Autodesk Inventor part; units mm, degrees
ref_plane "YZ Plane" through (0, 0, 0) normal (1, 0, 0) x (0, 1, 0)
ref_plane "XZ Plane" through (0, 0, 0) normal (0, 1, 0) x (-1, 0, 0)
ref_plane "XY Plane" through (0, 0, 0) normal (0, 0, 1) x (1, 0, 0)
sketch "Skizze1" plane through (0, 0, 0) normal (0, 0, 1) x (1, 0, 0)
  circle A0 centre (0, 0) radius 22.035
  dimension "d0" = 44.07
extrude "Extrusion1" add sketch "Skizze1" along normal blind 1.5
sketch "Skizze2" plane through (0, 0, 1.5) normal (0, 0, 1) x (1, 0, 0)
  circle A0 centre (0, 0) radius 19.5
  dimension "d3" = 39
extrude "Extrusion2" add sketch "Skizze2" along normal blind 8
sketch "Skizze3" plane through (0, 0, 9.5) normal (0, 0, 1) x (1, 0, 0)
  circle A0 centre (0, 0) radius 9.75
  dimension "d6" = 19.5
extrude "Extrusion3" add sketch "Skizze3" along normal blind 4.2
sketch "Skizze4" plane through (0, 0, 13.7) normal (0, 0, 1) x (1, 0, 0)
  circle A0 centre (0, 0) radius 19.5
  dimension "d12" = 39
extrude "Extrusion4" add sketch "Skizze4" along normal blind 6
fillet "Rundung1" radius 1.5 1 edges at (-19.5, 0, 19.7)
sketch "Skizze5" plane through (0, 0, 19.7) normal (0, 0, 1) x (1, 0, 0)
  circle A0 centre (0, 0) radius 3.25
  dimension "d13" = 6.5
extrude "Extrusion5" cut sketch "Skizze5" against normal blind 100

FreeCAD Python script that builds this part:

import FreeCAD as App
import Part
import Sketcher

V = App.Vector
Q = App.Units.Quantity


def edges_at(feature, points):
    """Names of the edges that pass closest to the given points."""
    edges = feature.Shape.Edges
    near = lambda p: min(range(len(edges)), key=lambda i: edges[i].distToShape(Part.Vertex(*p))[0])
    return sorted({f"Edge{near(p) + 1}" for p in points})

doc = App.newDocument("Part")
body = doc.addObject("PartDesign::Body", "Body")

sketch1 = body.newObject("Sketcher::SketchObject", "Sketch")
sketch1.AttachmentSupport = (doc.getObject("XY_Plane"), [""])
sketch1.MapMode = "FlatFace"
sketch1.addGeometry(Part.Circle(V(0, 0, 0), V(0, 0, 1), 22), False)
sketch1.addConstraint([
    Sketcher.Constraint("Coincident", 0, 3, -1, 1),
    Sketcher.Constraint("Diameter", 0, Q("44.07 mm")),
])
pad1 = body.newObject("PartDesign::Pad", "Pad")
pad1.Profile = sketch1
pad1.Length = 1.5

sketch2 = body.newObject("Sketcher::SketchObject", "Sketch001")
sketch2.AttachmentSupport = (doc.getObject("XY_Plane"), [""])
sketch2.MapMode = "FlatFace"
sketch2.AttachmentOffset = App.Placement(V(0, 0, 1.5), App.Rotation())
sketch2.addGeometry(Part.Circle(V(0, 0, 0), V(0, 0, 1), 20), False)
sketch2.addConstraint([
    Sketcher.Constraint("Coincident", 0, 3, -1, 1),
    Sketcher.Constraint("Diameter", 0, Q("39 mm")),
])
pad2 = body.newObject("PartDesign::Pad", "Pad001")
pad2.Profile = sketch2
pad2.Length = 8

sketch3 = body.newObject("Sketcher::SketchObject", "Sketch002")
sketch3.AttachmentSupport = (doc.getObject("XY_Plane"), [""])
sketch3.MapMode = "FlatFace"
sketch3.AttachmentOffset = App.Placement(V(0, 0, 9.5), App.Rotation())
sketch3.addGeometry(Part.Circle(V(0, 0, 0), V(0, 0, 1), 10), False)
sketch3.addConstraint([
    Sketcher.Constraint("Coincident", 0, 3, -1, 1),
    Sketcher.Constraint("Diameter", 0, Q("19.5 mm")),
])
pad3 = body.newObject("PartDesign::Pad", "Pad002")
pad3.Profile = sketch3
pad3.Length = 4.2

sketch4 = body.newObject("Sketcher::SketchObject", "Sketch003")
sketch4.AttachmentSupport = (doc.getObject("XY_Plane"), [""])
sketch4.MapMode = "FlatFace"
sketch4.AttachmentOffset = App.Placement(V(0, 0, 13.7), App.Rotation())
sketch4.addGeometry(Part.Circle(V(0, 0, 0), V(0, 0, 1), 20), False)
sketch4.addConstraint([
    Sketcher.Constraint("Coincident", 0, 3, -1, 1),
    Sketcher.Constraint("Diameter", 0, Q("39 mm")),
])
pad4 = body.newObject("PartDesign::Pad", "Pad003")
pad4.Profile = sketch4
pad4.Length = 6
doc.recompute()

fillet = body.newObject("PartDesign::Fillet", "Fillet")
fillet.Base = (pad4, edges_at(pad4, [(-19.5, 0, 19.7)]))
fillet.Radius = 1.5

sketch5 = body.newObject("Sketcher::SketchObject", "Sketch004")
sketch5.AttachmentSupport = (doc.getObject("XY_Plane"), [""])
sketch5.MapMode = "FlatFace"
sketch5.AttachmentOffset = App.Placement(V(0, 0, 19.7), App.Rotation())
sketch5.addGeometry(Part.Circle(V(0, 0, 0), V(0, 0, 1), 3.2), False)
sketch5.addConstraint([
    Sketcher.Constraint("Coincident", 0, 3, -1, 1),
    Sketcher.Constraint("Diameter", 0, Q("6.5 mm")),
])
pocket1 = body.newObject("PartDesign::Pocket", "Pocket")
pocket1.Profile = sketch5
pocket1.Length = 100

doc.recompute()
